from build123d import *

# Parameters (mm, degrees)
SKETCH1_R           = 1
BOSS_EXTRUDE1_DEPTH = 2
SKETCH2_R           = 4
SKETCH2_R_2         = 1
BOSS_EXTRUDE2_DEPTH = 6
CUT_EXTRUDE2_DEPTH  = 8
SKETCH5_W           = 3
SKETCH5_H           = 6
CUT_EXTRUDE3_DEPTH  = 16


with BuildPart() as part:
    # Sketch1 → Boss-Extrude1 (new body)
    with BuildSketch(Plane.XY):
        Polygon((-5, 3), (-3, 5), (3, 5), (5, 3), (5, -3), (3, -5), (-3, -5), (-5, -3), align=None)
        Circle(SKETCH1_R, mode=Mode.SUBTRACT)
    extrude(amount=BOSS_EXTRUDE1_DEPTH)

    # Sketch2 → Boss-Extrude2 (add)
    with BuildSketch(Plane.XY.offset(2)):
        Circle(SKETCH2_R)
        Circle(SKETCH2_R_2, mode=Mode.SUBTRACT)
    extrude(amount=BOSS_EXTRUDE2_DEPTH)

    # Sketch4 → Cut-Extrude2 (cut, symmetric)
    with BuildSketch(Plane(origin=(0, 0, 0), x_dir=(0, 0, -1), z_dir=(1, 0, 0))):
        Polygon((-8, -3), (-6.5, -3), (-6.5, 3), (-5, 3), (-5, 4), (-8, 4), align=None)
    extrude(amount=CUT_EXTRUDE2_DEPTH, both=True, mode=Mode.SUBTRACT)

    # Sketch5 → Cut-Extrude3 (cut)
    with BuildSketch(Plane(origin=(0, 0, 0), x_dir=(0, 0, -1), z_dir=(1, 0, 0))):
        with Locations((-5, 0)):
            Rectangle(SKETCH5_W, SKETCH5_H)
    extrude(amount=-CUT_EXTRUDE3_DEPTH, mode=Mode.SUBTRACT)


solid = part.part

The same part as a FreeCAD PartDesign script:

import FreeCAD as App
import Part
import Sketcher
Q = App.Units.Quantity

doc = App.newDocument("Part")
params = doc.addObject("Spreadsheet::Sheet", "Params")
for row, (alias, value) in enumerate([
    ("sketch1_diameter", "2 mm"),
    ("sketch1_width", "6 mm"),
    ("pad1_length", "2 mm"),
    ("sketch2_diameter", "8 mm"),
    ("sketch2_diameter2", "2 mm"),
    ("pad2_length", "6 mm"),
    ("sketch3_width", "6 mm"),
    ("sketch3_width2", "1 mm"),
    ("sketch3_height", "3 mm"),
    ("pocket1_length", "16 mm"),
    ("sketch4_width", "6 mm"),
    ("sketch4_height", "3 mm"),
    ("pocket2_length", "16 mm"),
], start=1):
    params.set(f"A{row}", alias)
    params.set(f"B{row}", "=" + value)
    params.setAlias(f"B{row}", alias)

body = doc.addObject("PartDesign::Body", "Body")

# Sketch on XY plane
sketch1 = body.newObject("Sketcher::SketchObject", "Sketch")
sketch1.AttachmentSupport = (doc.getObject("XY_Plane"), [""])
sketch1.MapMode = "FlatFace"
sketch1.addGeometry([
    Part.LineSegment(App.Vector(-3, 5, 0), App.Vector(-5, 3, 0)),  # 0
    Part.LineSegment(App.Vector(-5, 3, 0), App.Vector(-5, -3, 0)),  # 1
    Part.LineSegment(App.Vector(-5, -3, 0), App.Vector(-3, -5, 0)),  # 2
    Part.LineSegment(App.Vector(-3, -5, 0), App.Vector(3, -5, 0)),  # 3
    Part.LineSegment(App.Vector(3, -5, 0), App.Vector(5, -3, 0)),  # 4
    Part.LineSegment(App.Vector(5, -3, 0), App.Vector(5, 3, 0)),  # 5
    Part.LineSegment(App.Vector(5, 3, 0), App.Vector(3, 5, 0)),  # 6
    Part.LineSegment(App.Vector(3, 5, 0), App.Vector(-3, 5, 0)),  # 7
    Part.Circle(App.Vector(0, 0, 0), App.Vector(0, 0, 1), 1),  # 8
], False)
sketch1.addConstraint([
    Sketcher.Constraint("Coincident", 0, 2, 1, 1),
    Sketcher.Constraint("Coincident", 1, 2, 2, 1),
    Sketcher.Constraint("Coincident", 2, 2, 3, 1),
    Sketcher.Constraint("Coincident", 3, 2, 4, 1),
    Sketcher.Constraint("Coincident", 4, 2, 5, 1),
    Sketcher.Constraint("Coincident", 5, 2, 6, 1),
    Sketcher.Constraint("Coincident", 6, 2, 7, 1),
    Sketcher.Constraint("Coincident", 7, 2, 0, 1),
    Sketcher.Constraint("Vertical", 1),
    Sketcher.Constraint("Horizontal", 3),
    Sketcher.Constraint("Vertical", 5),
    Sketcher.Constraint("Horizontal", 7),
    Sketcher.Constraint("Coincident", 8, 3, -1, 1),
    Sketcher.Constraint("Symmetric", 0, 2, 4, 2, -1, 1),
    Sketcher.Constraint("Symmetric", 2, 2, 6, 2, -1, 1),
    Sketcher.Constraint("Perpendicular", 0, 2),
    Sketcher.Constraint("Perpendicular", 2, 4),
    Sketcher.Constraint("Perpendicular", 4, 6),
    Sketcher.Constraint("Horizontal", 1, 2, 4, 2),
    Sketcher.Constraint("Vertical", 3, 2, 6, 2),
    Sketcher.Constraint("Equal", 7, 1),
    Sketcher.Constraint("Diameter", 8, Q("2 mm")),
    Sketcher.Constraint("DistanceX", 3, 1, 3, 2, Q("6 mm")),
    Sketcher.Constraint("DistanceX", 0, 2, -1, 1, Q("5 mm")),
])
sketch1.setExpression("Constraints[21]", "Params.sketch1_diameter")
sketch1.setExpression("Constraints[22]", "Params.sketch1_width")
pad1 = body.newObject("PartDesign::Pad", "Pad")
pad1.Profile = sketch1
pad1.setExpression("Length", "Params.pad1_length")

# Sketch on XY plane
sketch2 = body.newObject("Sketcher::SketchObject", "Sketch001")
sketch2.AttachmentSupport = (doc.getObject("XY_Plane"), [""])
sketch2.MapMode = "FlatFace"
sketch2.AttachmentOffset = App.Placement(App.Vector(0, 0, 2), App.Rotation())
sketch2.addGeometry([
    Part.Circle(App.Vector(0, 0, 0), App.Vector(0, 0, 1), 4),
    Part.Circle(App.Vector(0, 0, 0), App.Vector(0, 0, 1), 1),
], False)
sketch2.addConstraint([
    Sketcher.Constraint("Coincident", 0, 3, -1, 1),
    Sketcher.Constraint("Coincident", 1, 3, -1, 1),
    Sketcher.Constraint("Diameter", 0, Q("8 mm")),
    Sketcher.Constraint("Diameter", 1, Q("2 mm")),
])
sketch2.setExpression("Constraints[2]", "Params.sketch2_diameter")
sketch2.setExpression("Constraints[3]", "Params.sketch2_diameter2")
pad2 = body.newObject("PartDesign::Pad", "Pad001")
pad2.Profile = sketch2
pad2.setExpression("Length", "Params.pad2_length")

# Sketch on YZ plane
sketch3 = body.newObject("Sketcher::SketchObject", "Sketch002")
sketch3.AttachmentSupport = (doc.getObject("YZ_Plane"), [""])
sketch3.MapMode = "FlatFace"
sketch3.addGeometry([
    Part.LineSegment(App.Vector(-3, 8, 0), App.Vector(-3, 6.5, 0)),  # 0
    Part.LineSegment(App.Vector(-3, 6.5, 0), App.Vector(3, 6.5, 0)),  # 1
    Part.LineSegment(App.Vector(3, 6.5, 0), App.Vector(3, 5, 0)),  # 2
    Part.LineSegment(App.Vector(3, 5, 0), App.Vector(4, 5, 0)),  # 3
    Part.LineSegment(App.Vector(4, 5, 0), App.Vector(4, 8, 0)),  # 4
    Part.LineSegment(App.Vector(4, 8, 0), App.Vector(-3, 8, 0)),  # 5
], False)
sketch3.addConstraint([
    Sketcher.Constraint("Coincident", 0, 2, 1, 1),
    Sketcher.Constraint("Coincident", 1, 2, 2, 1),
    Sketcher.Constraint("Coincident", 2, 2, 3, 1),
    Sketcher.Constraint("Coincident", 3, 2, 4, 1),
    Sketcher.Constraint("Coincident", 4, 2, 5, 1),
    Sketcher.Constraint("Coincident", 5, 2, 0, 1),
    Sketcher.Constraint("Vertical", 0),
    Sketcher.Constraint("Horizontal", 1),
    Sketcher.Constraint("Vertical", 2),
    Sketcher.Constraint("Horizontal", 3),
    Sketcher.Constraint("Vertical", 4),
    Sketcher.Constraint("Horizontal", 5),
    Sketcher.Constraint("Equal", 0, 2),
    Sketcher.Constraint("DistanceX", 1, 1, 1, 2, Q("6 mm")),
    Sketcher.Constraint("DistanceX", 3, 1, 3, 2, Q("1 mm")),
    Sketcher.Constraint("DistanceY", 4, 1, 4, 2, Q("3 mm")),
    Sketcher.Constraint("DistanceX", 0, 2, -1, 1, Q("3 mm")),
    Sketcher.Constraint("DistanceY", -1, 1, 2, 2, Q("5 mm")),
])
sketch3.setExpression("Constraints[13]", "Params.sketch3_width")
sketch3.setExpression("Constraints[14]", "Params.sketch3_width2")
sketch3.setExpression("Constraints[15]", "Params.sketch3_height")
pocket1 = body.newObject("PartDesign::Pocket", "Pocket")
pocket1.Profile = sketch3
pocket1.setExpression("Length", "Params.pocket1_length")
pocket1.Midplane = True

# Sketch on YZ plane
sketch4 = body.newObject("Sketcher::SketchObject", "Sketch003")
sketch4.AttachmentSupport = (doc.getObject("YZ_Plane"), [""])
sketch4.MapMode = "FlatFace"
sketch4.addGeometry([
    Part.LineSegment(App.Vector(3, 6.5, 0), App.Vector(-3, 6.5, 0)),
    Part.LineSegment(App.Vector(-3, 6.5, 0), App.Vector(-3, 3.5, 0)),
    Part.LineSegment(App.Vector(-3, 3.5, 0), App.Vector(3, 3.5, 0)),
    Part.LineSegment(App.Vector(3, 3.5, 0), App.Vector(3, 6.5, 0)),
], False)
sketch4.addConstraint([
    Sketcher.Constraint("Coincident", 0, 2, 1, 1),
    Sketcher.Constraint("Coincident", 1, 2, 2, 1),
    Sketcher.Constraint("Coincident", 2, 2, 3, 1),
    Sketcher.Constraint("Coincident", 3, 2, 0, 1),
    Sketcher.Constraint("Horizontal", 0),
    Sketcher.Constraint("Vertical", 1),
    Sketcher.Constraint("Horizontal", 2),
    Sketcher.Constraint("Vertical", 3),
    Sketcher.Constraint("DistanceX", 0, 2, 0, 1, Q("6 mm")),
    Sketcher.Constraint("DistanceY", 1, 2, 1, 1, Q("3 mm")),
    Sketcher.Constraint("DistanceX", 0, 2, -1, 1, Q("3 mm")),
    Sketcher.Constraint("DistanceY", -1, 1, 0, 2, Q("6.5 mm")),
])
sketch4.setExpression("Constraints[8]", "Params.sketch4_width")
sketch4.setExpression("Constraints[9]", "Params.sketch4_height")
pocket2 = body.newObject("PartDesign::Pocket", "Pocket001")
pocket2.Profile = sketch4
pocket2.setExpression("Length", "Params.pocket2_length")

doc.recompute()
